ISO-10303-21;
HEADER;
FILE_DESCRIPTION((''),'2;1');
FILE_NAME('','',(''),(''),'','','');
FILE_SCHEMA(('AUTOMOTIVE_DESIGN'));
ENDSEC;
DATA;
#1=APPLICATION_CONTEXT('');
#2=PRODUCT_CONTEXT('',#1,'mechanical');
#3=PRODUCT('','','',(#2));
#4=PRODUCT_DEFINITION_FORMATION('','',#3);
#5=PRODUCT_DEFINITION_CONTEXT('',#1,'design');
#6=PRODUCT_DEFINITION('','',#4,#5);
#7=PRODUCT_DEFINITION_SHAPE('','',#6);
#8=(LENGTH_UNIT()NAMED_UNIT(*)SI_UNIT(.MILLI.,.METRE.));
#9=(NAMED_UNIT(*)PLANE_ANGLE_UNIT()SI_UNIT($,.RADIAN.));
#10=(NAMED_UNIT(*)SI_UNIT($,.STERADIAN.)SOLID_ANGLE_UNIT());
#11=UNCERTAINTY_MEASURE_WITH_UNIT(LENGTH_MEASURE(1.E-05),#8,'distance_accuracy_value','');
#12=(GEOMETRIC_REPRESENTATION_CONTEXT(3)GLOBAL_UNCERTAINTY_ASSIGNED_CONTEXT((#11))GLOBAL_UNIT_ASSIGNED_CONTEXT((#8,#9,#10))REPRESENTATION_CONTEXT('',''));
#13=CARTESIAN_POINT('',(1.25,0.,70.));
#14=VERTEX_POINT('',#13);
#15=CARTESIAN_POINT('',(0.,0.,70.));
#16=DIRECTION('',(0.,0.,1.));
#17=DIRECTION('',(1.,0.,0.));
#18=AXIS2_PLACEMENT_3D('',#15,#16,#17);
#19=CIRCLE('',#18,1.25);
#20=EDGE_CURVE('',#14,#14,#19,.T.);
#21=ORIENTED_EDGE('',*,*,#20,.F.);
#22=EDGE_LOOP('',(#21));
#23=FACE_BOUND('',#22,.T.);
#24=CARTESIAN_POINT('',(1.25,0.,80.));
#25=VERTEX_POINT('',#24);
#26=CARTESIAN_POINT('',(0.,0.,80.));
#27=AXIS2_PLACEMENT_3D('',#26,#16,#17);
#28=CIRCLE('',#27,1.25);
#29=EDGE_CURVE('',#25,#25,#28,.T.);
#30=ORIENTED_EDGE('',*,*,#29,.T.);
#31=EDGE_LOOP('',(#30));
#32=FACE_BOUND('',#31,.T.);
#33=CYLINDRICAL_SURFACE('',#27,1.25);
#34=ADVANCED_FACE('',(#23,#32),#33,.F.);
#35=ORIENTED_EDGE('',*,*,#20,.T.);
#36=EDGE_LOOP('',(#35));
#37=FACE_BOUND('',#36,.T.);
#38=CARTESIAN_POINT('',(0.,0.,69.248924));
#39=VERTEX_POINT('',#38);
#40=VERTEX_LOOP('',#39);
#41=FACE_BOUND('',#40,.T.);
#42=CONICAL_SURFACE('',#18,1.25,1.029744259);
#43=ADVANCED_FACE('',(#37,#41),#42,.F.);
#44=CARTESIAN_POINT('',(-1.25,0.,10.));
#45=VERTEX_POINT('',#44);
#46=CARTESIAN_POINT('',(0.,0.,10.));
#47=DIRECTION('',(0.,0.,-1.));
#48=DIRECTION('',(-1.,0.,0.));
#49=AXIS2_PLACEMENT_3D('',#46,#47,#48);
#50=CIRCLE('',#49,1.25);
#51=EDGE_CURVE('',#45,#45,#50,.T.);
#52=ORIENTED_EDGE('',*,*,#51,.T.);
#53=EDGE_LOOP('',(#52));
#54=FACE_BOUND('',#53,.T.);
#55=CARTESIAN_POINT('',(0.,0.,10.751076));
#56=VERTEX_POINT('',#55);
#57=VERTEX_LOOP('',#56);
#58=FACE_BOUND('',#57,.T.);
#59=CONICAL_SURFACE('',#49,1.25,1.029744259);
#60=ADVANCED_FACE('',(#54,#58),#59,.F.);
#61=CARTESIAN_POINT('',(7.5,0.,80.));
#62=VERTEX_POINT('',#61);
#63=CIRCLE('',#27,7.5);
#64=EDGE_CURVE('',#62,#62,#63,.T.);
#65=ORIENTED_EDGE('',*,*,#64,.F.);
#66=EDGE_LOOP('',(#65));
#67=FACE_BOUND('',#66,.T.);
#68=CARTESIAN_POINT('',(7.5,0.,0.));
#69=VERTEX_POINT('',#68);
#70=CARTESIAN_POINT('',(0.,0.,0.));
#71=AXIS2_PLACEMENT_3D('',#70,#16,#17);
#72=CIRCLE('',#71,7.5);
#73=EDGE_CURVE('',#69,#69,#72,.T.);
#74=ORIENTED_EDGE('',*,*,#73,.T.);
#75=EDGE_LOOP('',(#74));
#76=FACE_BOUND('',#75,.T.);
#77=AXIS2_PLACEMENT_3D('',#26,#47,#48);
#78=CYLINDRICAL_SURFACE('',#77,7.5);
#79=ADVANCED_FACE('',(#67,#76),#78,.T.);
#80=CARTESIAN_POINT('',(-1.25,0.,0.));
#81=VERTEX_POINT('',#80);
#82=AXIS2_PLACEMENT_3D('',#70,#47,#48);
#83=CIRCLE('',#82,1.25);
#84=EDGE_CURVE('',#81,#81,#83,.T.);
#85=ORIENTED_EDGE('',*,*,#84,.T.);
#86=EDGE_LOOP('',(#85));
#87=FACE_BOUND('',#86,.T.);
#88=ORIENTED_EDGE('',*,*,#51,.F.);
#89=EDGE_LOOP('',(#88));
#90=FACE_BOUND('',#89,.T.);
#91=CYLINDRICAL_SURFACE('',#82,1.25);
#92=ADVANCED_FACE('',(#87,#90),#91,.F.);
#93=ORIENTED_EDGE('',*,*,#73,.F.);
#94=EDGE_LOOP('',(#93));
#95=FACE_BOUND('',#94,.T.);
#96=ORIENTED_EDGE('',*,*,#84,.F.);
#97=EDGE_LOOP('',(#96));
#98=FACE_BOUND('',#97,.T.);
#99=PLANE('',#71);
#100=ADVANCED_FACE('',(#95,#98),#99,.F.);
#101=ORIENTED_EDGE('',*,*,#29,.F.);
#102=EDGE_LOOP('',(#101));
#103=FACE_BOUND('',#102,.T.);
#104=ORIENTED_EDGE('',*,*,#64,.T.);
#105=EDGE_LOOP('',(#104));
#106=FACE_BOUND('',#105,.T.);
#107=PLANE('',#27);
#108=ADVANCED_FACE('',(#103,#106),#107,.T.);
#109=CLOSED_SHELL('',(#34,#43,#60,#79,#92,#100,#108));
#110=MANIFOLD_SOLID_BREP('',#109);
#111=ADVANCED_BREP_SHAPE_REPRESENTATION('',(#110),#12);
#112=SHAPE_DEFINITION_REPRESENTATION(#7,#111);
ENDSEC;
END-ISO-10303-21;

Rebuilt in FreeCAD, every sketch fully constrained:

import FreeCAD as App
import Part
import Sketcher
from FreeCAD import Vector
Q = App.Units.Quantity

doc = App.newDocument("Part")
body = doc.addObject("PartDesign::Body", "Body")

sketch1 = body.newObject("Sketcher::SketchObject", "Sketch")
sketch1.AttachmentSupport = (doc.getObject("XY_Plane"), [""])
sketch1.MapMode = "FlatFace"
sketch1.addGeometry(Part.Circle(Vector(0, 0, 0), Vector(0, 0, 1), 8), False)
sketch1.addConstraint(Sketcher.Constraint("Coincident", 0, 3, -1, 1))
sketch1.addConstraint(Sketcher.Constraint("Diameter", 0, Q("15 mm")))
pad1 = body.newObject("PartDesign::Pad", "Pad")
pad1.Profile = sketch1
pad1.Length = 80

sketch2 = body.newObject("Sketcher::SketchObject", "Sketch001")
sketch2.AttachmentSupport = (doc.getObject("XY_Plane"), [""])
sketch2.MapMode = "FlatFace"
sketch2.AttachmentOffset = App.Placement(Vector(0, 0, 80), App.Rotation())
sketch2.addGeometry(Part.Circle(Vector(0, 0, 0), Vector(0, 0, 1), 1.2), False)
sketch2.addConstraint(Sketcher.Constraint("Coincident", 0, 3, -1, 1))
sketch2.addConstraint(Sketcher.Constraint("Diameter", 0, Q("2.5 mm")))
doc.recompute()
hole = body.newObject("PartDesign::Hole", "Hole")
hole.Profile = sketch2
hole.ThreadType = "None"
hole.Diameter = 2.5
hole.DepthType = "Dimension"
hole.Depth = 10
hole.DrillPoint = "Angled"
hole.DrillPointAngle = 118

sketch3 = body.newObject("Sketcher::SketchObject", "Sketch002")
sketch3.AttachmentSupport = (doc.getObject("XY_Plane"), [""])
sketch3.MapMode = "FlatFace"
sketch3.addGeometry(Part.Circle(Vector(0, 0, 0), Vector(0, 0, 1), 1.2), False)
sketch3.addConstraint(Sketcher.Constraint("Coincident", 0, 3, -1, 1))
sketch3.addConstraint(Sketcher.Constraint("Diameter", 0, Q("2.5 mm")))
doc.recompute()
hole2 = body.newObject("PartDesign::Hole", "Hole001")
hole2.Profile = sketch3
hole2.ThreadType = "None"
hole2.Diameter = 2.5
hole2.DepthType = "Dimension"
hole2.Depth = 10
hole2.DrillPoint = "Angled"
hole2.DrillPointAngle = 118
hole2.Reversed = True

doc.recompute()
